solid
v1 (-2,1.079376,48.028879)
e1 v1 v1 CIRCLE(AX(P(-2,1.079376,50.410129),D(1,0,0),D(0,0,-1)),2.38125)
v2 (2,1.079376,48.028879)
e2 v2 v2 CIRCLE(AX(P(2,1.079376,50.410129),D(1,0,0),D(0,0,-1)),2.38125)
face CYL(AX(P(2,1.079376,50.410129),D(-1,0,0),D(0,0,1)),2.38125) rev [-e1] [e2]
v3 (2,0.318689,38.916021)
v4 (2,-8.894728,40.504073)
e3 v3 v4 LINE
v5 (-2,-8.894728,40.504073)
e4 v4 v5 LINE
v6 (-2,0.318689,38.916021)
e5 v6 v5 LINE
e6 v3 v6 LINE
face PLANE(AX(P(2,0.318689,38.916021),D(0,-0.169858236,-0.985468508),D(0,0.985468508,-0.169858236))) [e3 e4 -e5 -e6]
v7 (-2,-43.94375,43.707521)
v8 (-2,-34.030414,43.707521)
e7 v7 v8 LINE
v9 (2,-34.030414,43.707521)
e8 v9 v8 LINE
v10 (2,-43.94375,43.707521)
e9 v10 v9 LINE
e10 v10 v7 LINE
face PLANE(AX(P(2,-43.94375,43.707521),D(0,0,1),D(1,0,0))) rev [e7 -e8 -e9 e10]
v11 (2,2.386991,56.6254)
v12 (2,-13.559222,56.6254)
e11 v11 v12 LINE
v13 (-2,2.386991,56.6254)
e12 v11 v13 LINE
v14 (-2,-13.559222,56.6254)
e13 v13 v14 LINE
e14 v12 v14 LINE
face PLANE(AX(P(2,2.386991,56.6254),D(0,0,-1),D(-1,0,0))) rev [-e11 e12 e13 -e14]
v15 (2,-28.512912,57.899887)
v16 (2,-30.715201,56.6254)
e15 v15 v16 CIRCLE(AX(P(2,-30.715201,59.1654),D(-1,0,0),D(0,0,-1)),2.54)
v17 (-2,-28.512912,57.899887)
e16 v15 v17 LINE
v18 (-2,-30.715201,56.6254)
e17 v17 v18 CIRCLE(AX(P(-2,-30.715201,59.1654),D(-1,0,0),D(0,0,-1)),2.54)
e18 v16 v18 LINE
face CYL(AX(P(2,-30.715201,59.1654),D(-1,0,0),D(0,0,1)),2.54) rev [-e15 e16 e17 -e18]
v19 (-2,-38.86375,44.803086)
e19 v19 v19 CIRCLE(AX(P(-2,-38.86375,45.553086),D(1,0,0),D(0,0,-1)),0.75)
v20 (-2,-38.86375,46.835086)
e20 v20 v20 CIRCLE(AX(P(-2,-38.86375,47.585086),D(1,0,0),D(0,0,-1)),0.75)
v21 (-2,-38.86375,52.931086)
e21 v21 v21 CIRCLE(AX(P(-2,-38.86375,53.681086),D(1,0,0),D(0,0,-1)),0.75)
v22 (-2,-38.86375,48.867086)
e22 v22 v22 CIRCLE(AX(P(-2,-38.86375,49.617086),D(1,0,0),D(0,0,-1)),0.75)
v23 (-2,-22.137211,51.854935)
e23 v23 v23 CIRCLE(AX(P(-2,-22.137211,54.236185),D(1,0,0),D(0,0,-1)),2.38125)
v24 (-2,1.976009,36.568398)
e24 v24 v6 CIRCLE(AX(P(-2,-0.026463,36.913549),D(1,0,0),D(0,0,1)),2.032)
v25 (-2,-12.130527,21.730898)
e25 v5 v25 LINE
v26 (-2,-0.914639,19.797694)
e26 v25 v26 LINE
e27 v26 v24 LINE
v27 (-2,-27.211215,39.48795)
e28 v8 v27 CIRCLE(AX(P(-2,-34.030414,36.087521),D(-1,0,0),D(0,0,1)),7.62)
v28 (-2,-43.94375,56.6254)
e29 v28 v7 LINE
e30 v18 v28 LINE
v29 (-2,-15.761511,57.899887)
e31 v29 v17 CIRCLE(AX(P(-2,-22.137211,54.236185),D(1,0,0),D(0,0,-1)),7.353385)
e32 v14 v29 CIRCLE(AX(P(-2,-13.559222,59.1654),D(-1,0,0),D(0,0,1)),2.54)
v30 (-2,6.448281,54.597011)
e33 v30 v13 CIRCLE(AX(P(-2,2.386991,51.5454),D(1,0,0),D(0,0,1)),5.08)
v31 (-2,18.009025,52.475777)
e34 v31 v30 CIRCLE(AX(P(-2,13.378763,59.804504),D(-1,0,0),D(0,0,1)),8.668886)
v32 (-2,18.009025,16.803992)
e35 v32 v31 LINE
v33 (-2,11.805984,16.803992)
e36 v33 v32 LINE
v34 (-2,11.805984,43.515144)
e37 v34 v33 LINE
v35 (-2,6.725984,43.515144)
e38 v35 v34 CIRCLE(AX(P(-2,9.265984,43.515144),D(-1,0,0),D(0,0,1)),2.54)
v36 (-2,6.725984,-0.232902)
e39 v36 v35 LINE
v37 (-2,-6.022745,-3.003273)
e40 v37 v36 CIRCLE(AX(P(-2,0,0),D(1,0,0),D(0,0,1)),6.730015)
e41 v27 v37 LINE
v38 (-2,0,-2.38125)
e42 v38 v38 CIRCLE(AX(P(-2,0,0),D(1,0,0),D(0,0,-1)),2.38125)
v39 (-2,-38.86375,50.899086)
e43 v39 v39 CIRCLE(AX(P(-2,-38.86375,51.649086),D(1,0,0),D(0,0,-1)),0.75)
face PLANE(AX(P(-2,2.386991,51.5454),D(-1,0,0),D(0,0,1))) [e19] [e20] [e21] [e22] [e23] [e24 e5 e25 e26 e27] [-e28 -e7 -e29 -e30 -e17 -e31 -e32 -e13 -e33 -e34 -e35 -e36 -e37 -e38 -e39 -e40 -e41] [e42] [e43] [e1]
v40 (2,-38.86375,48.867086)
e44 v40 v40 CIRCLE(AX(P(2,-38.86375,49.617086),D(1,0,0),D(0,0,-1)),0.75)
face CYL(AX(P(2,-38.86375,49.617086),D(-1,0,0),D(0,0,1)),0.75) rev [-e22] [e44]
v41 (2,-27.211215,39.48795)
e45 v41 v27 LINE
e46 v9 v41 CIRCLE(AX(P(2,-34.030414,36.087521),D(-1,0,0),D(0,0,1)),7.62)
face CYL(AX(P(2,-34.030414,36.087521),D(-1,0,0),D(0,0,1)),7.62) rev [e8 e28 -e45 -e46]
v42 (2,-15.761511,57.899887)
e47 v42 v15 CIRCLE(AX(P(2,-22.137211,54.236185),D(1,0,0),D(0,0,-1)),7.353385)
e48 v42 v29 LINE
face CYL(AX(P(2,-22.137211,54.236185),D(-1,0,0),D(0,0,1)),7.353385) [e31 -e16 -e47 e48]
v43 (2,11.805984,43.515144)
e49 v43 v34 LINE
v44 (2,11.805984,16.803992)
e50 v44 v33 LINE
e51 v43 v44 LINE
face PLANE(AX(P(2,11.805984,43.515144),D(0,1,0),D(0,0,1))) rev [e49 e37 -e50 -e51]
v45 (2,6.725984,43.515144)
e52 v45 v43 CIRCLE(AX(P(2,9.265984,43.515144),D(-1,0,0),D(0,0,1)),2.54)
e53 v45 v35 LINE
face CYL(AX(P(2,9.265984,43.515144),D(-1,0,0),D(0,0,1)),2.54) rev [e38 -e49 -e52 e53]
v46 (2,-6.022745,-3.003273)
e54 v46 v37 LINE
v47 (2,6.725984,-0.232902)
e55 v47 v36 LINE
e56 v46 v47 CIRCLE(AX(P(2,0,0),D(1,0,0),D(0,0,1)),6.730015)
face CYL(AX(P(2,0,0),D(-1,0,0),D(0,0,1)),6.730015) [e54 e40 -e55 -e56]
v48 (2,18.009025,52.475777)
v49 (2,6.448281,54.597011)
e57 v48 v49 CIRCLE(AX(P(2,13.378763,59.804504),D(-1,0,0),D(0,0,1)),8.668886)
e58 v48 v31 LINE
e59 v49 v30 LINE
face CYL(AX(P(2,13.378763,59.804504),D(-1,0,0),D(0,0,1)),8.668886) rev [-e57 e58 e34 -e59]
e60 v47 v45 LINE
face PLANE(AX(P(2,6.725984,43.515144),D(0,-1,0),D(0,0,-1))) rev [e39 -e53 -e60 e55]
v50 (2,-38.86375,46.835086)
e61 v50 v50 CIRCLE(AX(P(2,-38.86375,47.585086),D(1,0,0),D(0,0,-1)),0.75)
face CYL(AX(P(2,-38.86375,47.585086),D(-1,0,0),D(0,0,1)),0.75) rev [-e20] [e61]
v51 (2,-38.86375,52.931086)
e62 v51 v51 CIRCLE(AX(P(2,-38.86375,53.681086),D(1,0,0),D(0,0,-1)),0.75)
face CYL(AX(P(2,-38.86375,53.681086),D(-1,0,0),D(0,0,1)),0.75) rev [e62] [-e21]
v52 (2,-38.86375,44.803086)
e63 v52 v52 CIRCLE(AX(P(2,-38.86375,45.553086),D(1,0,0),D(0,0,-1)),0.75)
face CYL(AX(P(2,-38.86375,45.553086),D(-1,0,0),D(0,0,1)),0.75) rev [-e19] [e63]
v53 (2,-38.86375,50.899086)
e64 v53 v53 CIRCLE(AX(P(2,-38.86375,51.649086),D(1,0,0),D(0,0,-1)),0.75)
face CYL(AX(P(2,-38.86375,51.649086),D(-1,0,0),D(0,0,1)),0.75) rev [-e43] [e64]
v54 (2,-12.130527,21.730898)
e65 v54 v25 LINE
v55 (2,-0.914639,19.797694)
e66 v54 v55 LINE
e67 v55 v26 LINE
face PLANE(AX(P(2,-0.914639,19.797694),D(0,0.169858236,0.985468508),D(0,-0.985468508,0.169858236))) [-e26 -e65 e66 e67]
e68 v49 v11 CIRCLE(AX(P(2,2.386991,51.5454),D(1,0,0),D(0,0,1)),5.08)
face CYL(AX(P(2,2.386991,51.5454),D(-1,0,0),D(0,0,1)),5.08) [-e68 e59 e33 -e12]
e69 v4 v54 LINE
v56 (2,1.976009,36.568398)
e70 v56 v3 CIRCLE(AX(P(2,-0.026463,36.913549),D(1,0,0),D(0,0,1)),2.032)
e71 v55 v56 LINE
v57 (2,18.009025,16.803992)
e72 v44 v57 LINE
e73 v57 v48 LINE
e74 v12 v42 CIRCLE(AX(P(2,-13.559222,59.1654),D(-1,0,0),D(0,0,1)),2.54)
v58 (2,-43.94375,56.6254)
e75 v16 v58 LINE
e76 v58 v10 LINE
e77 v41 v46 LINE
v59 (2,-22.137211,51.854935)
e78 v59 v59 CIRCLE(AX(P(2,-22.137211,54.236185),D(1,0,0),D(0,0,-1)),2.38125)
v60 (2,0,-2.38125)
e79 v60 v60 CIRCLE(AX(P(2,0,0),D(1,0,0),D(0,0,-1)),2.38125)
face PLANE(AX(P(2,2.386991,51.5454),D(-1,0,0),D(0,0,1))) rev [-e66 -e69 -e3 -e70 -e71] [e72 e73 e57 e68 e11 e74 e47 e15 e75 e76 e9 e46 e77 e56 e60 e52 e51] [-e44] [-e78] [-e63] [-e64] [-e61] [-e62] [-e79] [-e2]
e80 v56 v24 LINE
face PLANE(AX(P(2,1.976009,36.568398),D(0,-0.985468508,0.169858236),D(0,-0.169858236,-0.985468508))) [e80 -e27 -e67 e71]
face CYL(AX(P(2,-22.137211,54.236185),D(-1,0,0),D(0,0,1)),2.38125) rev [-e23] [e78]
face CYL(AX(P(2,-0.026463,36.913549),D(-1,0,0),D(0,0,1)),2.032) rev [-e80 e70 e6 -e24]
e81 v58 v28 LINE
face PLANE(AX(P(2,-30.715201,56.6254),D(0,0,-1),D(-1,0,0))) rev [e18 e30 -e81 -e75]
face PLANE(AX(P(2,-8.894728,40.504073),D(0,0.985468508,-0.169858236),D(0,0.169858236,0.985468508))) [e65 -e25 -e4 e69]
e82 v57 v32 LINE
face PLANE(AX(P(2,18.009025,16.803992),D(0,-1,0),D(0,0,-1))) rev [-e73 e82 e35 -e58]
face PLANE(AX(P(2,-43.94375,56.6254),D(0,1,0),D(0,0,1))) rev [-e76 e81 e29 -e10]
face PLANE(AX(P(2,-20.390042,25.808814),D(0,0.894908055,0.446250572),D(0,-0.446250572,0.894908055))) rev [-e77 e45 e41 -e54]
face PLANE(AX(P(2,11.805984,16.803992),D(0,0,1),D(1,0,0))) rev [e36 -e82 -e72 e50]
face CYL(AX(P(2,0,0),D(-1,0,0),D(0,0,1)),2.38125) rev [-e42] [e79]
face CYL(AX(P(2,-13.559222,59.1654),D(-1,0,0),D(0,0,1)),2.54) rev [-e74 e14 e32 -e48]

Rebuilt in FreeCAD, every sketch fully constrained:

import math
import FreeCAD as App
import Part
import Sketcher
Q = App.Units.Quantity

doc = App.newDocument("Part")
body = doc.addObject("PartDesign::Body", "Body")

# Sketch on YZ plane
sketch1 = doc.addObject("Sketcher::SketchObject", "Sketch")
body.addObject(sketch1)
sketch1.AttachmentSupport = (doc.YZ_Plane, [""])
sketch1.MapMode = "FlatFace"
sketch1.addGeometry(Part.LineSegment(App.Vector(2.386991, 56.6254, 0), App.Vector(-13.559222, 56.6254, 0)), False)
sketch1.addGeometry(Part.ArcOfCircle(Part.Circle(App.Vector(-13.559222, 59.1654, 0), App.Vector(0, 0, 1), 2.54), math.radians(-150.116804), math.radians(-90)), False)
sketch1.addGeometry(Part.ArcOfCircle(Part.Circle(App.Vector(-22.137211, 54.236185, 0), App.Vector(0, 0, 1), 7.353385), math.radians(29.883196), math.radians(150.116804)), False)
sketch1.addGeometry(Part.ArcOfCircle(Part.Circle(App.Vector(-30.715201, 59.1654, 0), App.Vector(0, 0, 1), 2.54), math.radians(-90), math.radians(-29.883196)), False)
sketch1.addGeometry(Part.LineSegment(App.Vector(-30.715201, 56.6254, 0), App.Vector(-43.94375, 56.6254, 0)), False)
sketch1.addGeometry(Part.LineSegment(App.Vector(-43.94375, 56.6254, 0), App.Vector(-43.94375, 43.707521, 0)), False)
sketch1.addGeometry(Part.LineSegment(App.Vector(-43.94375, 43.707521, 0), App.Vector(-34.030414, 43.707521, 0)), False)
sketch1.addGeometry(Part.ArcOfCircle(Part.Circle(App.Vector(-34.030414, 36.087521, 0), App.Vector(0, 0, 1), 7.62), math.radians(26.503378), math.radians(90)), False)
sketch1.addGeometry(Part.LineSegment(App.Vector(-27.211215, 39.48795, 0), App.Vector(-20.390042, 25.808814, 0)), False)
sketch1.addGeometry(Part.LineSegment(App.Vector(-20.390042, 25.808814, 0), App.Vector(-6.022745, -3.003273, 0)), False)
sketch1.addGeometry(Part.ArcOfCircle(Part.Circle(App.Vector(0, 0, 0), App.Vector(0, 0, 1), 6.730015), math.radians(-153.496622), math.radians(-1.983199)), False)
sketch1.addGeometry(Part.LineSegment(App.Vector(6.725984, -0.232902, 0), App.Vector(6.725984, 43.515144, 0)), False)
sketch1.addGeometry(Part.ArcOfCircle(Part.Circle(App.Vector(9.265984, 43.515144, 0), App.Vector(0, 0, 1), 2.54), math.radians(0), math.radians(180)), False)
sketch1.addGeometry(Part.LineSegment(App.Vector(11.805984, 43.515144, 0), App.Vector(11.805984, 16.803992, 0)), False)
sketch1.addGeometry(Part.LineSegment(App.Vector(11.805984, 16.803992, 0), App.Vector(18.009025, 16.803992, 0)), False)
sketch1.addGeometry(Part.LineSegment(App.Vector(18.009025, 16.803992, 0), App.Vector(18.009025, 52.475777, 0)), False)
sketch1.addGeometry(Part.ArcOfCircle(Part.Circle(App.Vector(13.378763, 59.804504, 0), App.Vector(0, 0, 1), 8.668886), math.radians(-143.079177), math.radians(-57.715462)), False)
sketch1.addGeometry(Part.ArcOfCircle(Part.Circle(App.Vector(2.386991, 51.5454, 0), App.Vector(0, 0, 1), 5.08), math.radians(36.920823), math.radians(90)), False)
sketch1.addGeometry(Part.Circle(App.Vector(-38.86375, 53.681086, 0), App.Vector(0, 0, 1), 0.75), False)
sketch1.addGeometry(Part.Circle(App.Vector(-38.86375, 51.649086, 0), App.Vector(0, 0, 1), 0.75), False)
sketch1.addGeometry(Part.Circle(App.Vector(-38.86375, 49.617086, 0), App.Vector(0, 0, 1), 0.75), False)
sketch1.addGeometry(Part.Circle(App.Vector(-38.86375, 47.585086, 0), App.Vector(0, 0, 1), 0.75), False)
sketch1.addGeometry(Part.Circle(App.Vector(-38.86375, 45.553086, 0), App.Vector(0, 0, 1), 0.75), False)
sketch1.addGeometry(Part.Circle(App.Vector(-22.137211, 54.236185, 0), App.Vector(0, 0, 1), 2.38125), False)
sketch1.addGeometry(Part.Circle(App.Vector(1.079376, 50.410129, 0), App.Vector(0, 0, 1), 2.38125), False)
sketch1.addGeometry(Part.ArcOfCircle(Part.Circle(App.Vector(-0.026463, 36.913549, 0), App.Vector(0, 0, 1), 2.032), math.radians(-9.779577), math.radians(80.220423)), False)
sketch1.addGeometry(Part.LineSegment(App.Vector(1.976009, 36.568398, 0), App.Vector(-0.914639, 19.797694, 0)), False)
sketch1.addGeometry(Part.LineSegment(App.Vector(-0.914639, 19.797694, 0), App.Vector(-12.130527, 21.730898, 0)), False)
sketch1.addGeometry(Part.LineSegment(App.Vector(-12.130527, 21.730898, 0), App.Vector(-8.894728, 40.504073, 0)), False)
sketch1.addGeometry(Part.LineSegment(App.Vector(-8.894728, 40.504073, 0), App.Vector(0.318689, 38.916021, 0)), False)
sketch1.addGeometry(Part.Circle(App.Vector(0, 0, 0), App.Vector(0, 0, 1), 2.38125), False)
sketch1.addConstraint(Sketcher.Constraint("Tangent", 0, 2, 1, 2))
sketch1.addConstraint(Sketcher.Constraint("Tangent", 1, 1, 2, 1))
sketch1.addConstraint(Sketcher.Constraint("Tangent", 2, 2, 3, 2))
sketch1.addConstraint(Sketcher.Constraint("Tangent", 3, 1, 4, 1))
sketch1.addConstraint(Sketcher.Constraint("Coincident", 4, 2, 5, 1))
sketch1.addConstraint(Sketcher.Constraint("Coincident", 5, 2, 6, 1))
sketch1.addConstraint(Sketcher.Constraint("Tangent", 6, 2, 7, 2))
sketch1.addConstraint(Sketcher.Constraint("Tangent", 7, 1, 8, 1))
sketch1.addConstraint(Sketcher.Constraint("Coincident", 8, 2, 9, 1))
sketch1.addConstraint(Sketcher.Constraint("Tangent", 9, 2, 10, 1))
sketch1.addConstraint(Sketcher.Constraint("Coincident", 10, 2, 11, 1))
sketch1.addConstraint(Sketcher.Constraint("Tangent", 11, 2, 12, 2))
sketch1.addConstraint(Sketcher.Constraint("Tangent", 12, 1, 13, 1))
sketch1.addConstraint(Sketcher.Constraint("Coincident", 13, 2, 14, 1))
sketch1.addConstraint(Sketcher.Constraint("Coincident", 14, 2, 15, 1))
sketch1.addConstraint(Sketcher.Constraint("Coincident", 15, 2, 16, 2))
sketch1.addConstraint(Sketcher.Constraint("Tangent", 16, 1, 17, 1))
sketch1.addConstraint(Sketcher.Constraint("Tangent", 17, 2, 0, 1))
sketch1.addConstraint(Sketcher.Constraint("Tangent", 25, 1, 26, 1))
sketch1.addConstraint(Sketcher.Constraint("Coincident", 26, 2, 27, 1))
sketch1.addConstraint(Sketcher.Constraint("Coincident", 27, 2, 28, 1))
sketch1.addConstraint(Sketcher.Constraint("Coincident", 28, 2, 29, 1))
sketch1.addConstraint(Sketcher.Constraint("Tangent", 29, 2, 25, 2))
sketch1.addConstraint(Sketcher.Constraint("Horizontal", 0))
sketch1.addConstraint(Sketcher.Constraint("Horizontal", 4))
sketch1.addConstraint(Sketcher.Constraint("Vertical", 5))
sketch1.addConstraint(Sketcher.Constraint("Horizontal", 6))
sketch1.addConstraint(Sketcher.Constraint("Vertical", 11))
sketch1.addConstraint(Sketcher.Constraint("Vertical", 13))
sketch1.addConstraint(Sketcher.Constraint("Horizontal", 14))
sketch1.addConstraint(Sketcher.Constraint("Vertical", 15))
sketch1.addConstraint(Sketcher.Constraint("Coincident", 10, 3, -1, 1))
sketch1.addConstraint(Sketcher.Constraint("Coincident", 30, 3, -1, 1))
sketch1.addConstraint(Sketcher.Constraint("Coincident", 23, 3, 2, 3))
sketch1.addConstraint(Sketcher.Constraint("Equal", 1, 3))
sketch1.addConstraint(Sketcher.Constraint("Equal", 3, 12))
sketch1.addConstraint(Sketcher.Constraint("Equal", 18, 19))
sketch1.addConstraint(Sketcher.Constraint("Equal", 19, 20))
sketch1.addConstraint(Sketcher.Constraint("Equal", 20, 21))
sketch1.addConstraint(Sketcher.Constraint("Equal", 21, 22))
sketch1.addConstraint(Sketcher.Constraint("Equal", 23, 24))
sketch1.addConstraint(Sketcher.Constraint("Equal", 24, 30))
sketch1.addConstraint(Sketcher.Constraint("Parallel", 8, 9))
sketch1.addConstraint(Sketcher.Constraint("Perpendicular", 26, 27))
sketch1.addConstraint(Sketcher.Constraint("Perpendicular", 27, 28))
sketch1.addConstraint(Sketcher.Constraint("Perpendicular", 28, 29))
sketch1.addConstraint(Sketcher.Constraint("Horizontal", 1, 3, 3, 3))
sketch1.addConstraint(Sketcher.Constraint("Vertical", 18, 3, 19, 3))
sketch1.addConstraint(Sketcher.Constraint("Vertical", 19, 3, 20, 3))
sketch1.addConstraint(Sketcher.Constraint("Vertical", 20, 3, 21, 3))
sketch1.addConstraint(Sketcher.Constraint("Vertical", 21, 3, 22, 3))
sketch1.addConstraint(Sketcher.Constraint("Radius", 1, Q("0.1 in")))
sketch1.addConstraint(Sketcher.Constraint("Radius", 7, Q("0.3 in")))
sketch1.addConstraint(Sketcher.Constraint("Radius", 17, Q("0.2 in")))
sketch1.addConstraint(Sketcher.Constraint("Radius", 25, Q("0.08 in")))
sketch1.addConstraint(Sketcher.Constraint("Diameter", 23, Q("0.1875 in")))
sketch1.addConstraint(Sketcher.Constraint("DistanceX", 4, 2, 18, 3, Q("0.2 in")))
sketch1.addConstraint(Sketcher.Constraint("Distance", 26, Q("0.67 in")))
sketch1.addConstraint(Sketcher.Constraint("Diameter", 18, 1.5))
sketch1.addConstraint(Sketcher.Constraint("DistanceY", 19, 3, 18, 3, Q("0.08 in")))
sketch1.addConstraint(Sketcher.Constraint("DistanceY", 20, 3, 19, 3, Q("0.08 in")))
sketch1.addConstraint(Sketcher.Constraint("DistanceY", 21, 3, 20, 3, Q("0.08 in")))
sketch1.addConstraint(Sketcher.Constraint("DistanceY", 22, 3, 21, 3, Q("0.08 in")))
sketch1.addConstraint(Sketcher.Constraint("Radius", 2, 7.353385))
sketch1.addConstraint(Sketcher.Constraint("Radius", 10, 6.730015))
sketch1.addConstraint(Sketcher.Constraint("Radius", 16, 8.668886))
sketch1.addConstraint(Sketcher.Constraint("DistanceX", 4, 2, 4, 1, 13.228549))
sketch1.addConstraint(Sketcher.Constraint("DistanceX", 14, 1, 14, 2, 6.203041))
sketch1.addConstraint(Sketcher.Constraint("DistanceY", 5, 2, 5, 1, 12.91788))
sketch1.addConstraint(Sketcher.Constraint("DistanceY", -1, 1, 1, 3, 59.1654))
sketch1.addConstraint(Sketcher.Constraint("DistanceX", 3, 3, -1, 1, 30.715201))
sketch1.addConstraint(Sketcher.Constraint("DistanceY", 10, 2, -1, 1, 0.232902))
sketch1.addConstraint(Sketcher.Constraint("DistanceY", 18, 3, 2, 3, 0.555098))
sketch1.addConstraint(Sketcher.Constraint("DistanceX", 23, 3, 1, 1, 6.375701))
sketch1.addConstraint(Sketcher.Constraint("DistanceX", 7, 3, 7, 1, 6.819199))
sketch1.addConstraint(Sketcher.Constraint("DistanceY", 27, 2, 25, 1, 14.8375))
sketch1.addConstraint(Sketcher.Constraint("Distance", 8, 15.285521))
sketch1.addConstraint(Sketcher.Constraint("DistanceX", 0, 2, 0, 1, 15.946213))
sketch1.addConstraint(Sketcher.Constraint("DistanceY", 11, 1, 11, 2, 43.748046))
sketch1.addConstraint(Sketcher.Constraint("DistanceY", 13, 2, 13, 1, 26.711152))
sketch1.addConstraint(Sketcher.Constraint("DistanceY", 15, 1, 15, 2, 35.671784))
sketch1.addConstraint(Sketcher.Constraint("DistanceY", -1, 1, 24, 3, 50.410129))
sketch1.addConstraint(Sketcher.Constraint("DistanceY", -1, 1, 25, 3, 36.913549))
sketch1.addConstraint(Sketcher.Constraint("DistanceX", -1, 1, 25, 1, 1.976009))
sketch1.addConstraint(Sketcher.Constraint("DistanceX", 26, 2, -1, 1, 0.914639))
sketch1.addConstraint(Sketcher.Constraint("DistanceX", 24, 3, 12, 3, 8.186608))
pad1 = doc.addObject("PartDesign::Pad", "Pad")
body.addObject(pad1)
pad1.Profile = sketch1
pad1.Length = 4
pad1.Midplane = True

doc.recompute()
